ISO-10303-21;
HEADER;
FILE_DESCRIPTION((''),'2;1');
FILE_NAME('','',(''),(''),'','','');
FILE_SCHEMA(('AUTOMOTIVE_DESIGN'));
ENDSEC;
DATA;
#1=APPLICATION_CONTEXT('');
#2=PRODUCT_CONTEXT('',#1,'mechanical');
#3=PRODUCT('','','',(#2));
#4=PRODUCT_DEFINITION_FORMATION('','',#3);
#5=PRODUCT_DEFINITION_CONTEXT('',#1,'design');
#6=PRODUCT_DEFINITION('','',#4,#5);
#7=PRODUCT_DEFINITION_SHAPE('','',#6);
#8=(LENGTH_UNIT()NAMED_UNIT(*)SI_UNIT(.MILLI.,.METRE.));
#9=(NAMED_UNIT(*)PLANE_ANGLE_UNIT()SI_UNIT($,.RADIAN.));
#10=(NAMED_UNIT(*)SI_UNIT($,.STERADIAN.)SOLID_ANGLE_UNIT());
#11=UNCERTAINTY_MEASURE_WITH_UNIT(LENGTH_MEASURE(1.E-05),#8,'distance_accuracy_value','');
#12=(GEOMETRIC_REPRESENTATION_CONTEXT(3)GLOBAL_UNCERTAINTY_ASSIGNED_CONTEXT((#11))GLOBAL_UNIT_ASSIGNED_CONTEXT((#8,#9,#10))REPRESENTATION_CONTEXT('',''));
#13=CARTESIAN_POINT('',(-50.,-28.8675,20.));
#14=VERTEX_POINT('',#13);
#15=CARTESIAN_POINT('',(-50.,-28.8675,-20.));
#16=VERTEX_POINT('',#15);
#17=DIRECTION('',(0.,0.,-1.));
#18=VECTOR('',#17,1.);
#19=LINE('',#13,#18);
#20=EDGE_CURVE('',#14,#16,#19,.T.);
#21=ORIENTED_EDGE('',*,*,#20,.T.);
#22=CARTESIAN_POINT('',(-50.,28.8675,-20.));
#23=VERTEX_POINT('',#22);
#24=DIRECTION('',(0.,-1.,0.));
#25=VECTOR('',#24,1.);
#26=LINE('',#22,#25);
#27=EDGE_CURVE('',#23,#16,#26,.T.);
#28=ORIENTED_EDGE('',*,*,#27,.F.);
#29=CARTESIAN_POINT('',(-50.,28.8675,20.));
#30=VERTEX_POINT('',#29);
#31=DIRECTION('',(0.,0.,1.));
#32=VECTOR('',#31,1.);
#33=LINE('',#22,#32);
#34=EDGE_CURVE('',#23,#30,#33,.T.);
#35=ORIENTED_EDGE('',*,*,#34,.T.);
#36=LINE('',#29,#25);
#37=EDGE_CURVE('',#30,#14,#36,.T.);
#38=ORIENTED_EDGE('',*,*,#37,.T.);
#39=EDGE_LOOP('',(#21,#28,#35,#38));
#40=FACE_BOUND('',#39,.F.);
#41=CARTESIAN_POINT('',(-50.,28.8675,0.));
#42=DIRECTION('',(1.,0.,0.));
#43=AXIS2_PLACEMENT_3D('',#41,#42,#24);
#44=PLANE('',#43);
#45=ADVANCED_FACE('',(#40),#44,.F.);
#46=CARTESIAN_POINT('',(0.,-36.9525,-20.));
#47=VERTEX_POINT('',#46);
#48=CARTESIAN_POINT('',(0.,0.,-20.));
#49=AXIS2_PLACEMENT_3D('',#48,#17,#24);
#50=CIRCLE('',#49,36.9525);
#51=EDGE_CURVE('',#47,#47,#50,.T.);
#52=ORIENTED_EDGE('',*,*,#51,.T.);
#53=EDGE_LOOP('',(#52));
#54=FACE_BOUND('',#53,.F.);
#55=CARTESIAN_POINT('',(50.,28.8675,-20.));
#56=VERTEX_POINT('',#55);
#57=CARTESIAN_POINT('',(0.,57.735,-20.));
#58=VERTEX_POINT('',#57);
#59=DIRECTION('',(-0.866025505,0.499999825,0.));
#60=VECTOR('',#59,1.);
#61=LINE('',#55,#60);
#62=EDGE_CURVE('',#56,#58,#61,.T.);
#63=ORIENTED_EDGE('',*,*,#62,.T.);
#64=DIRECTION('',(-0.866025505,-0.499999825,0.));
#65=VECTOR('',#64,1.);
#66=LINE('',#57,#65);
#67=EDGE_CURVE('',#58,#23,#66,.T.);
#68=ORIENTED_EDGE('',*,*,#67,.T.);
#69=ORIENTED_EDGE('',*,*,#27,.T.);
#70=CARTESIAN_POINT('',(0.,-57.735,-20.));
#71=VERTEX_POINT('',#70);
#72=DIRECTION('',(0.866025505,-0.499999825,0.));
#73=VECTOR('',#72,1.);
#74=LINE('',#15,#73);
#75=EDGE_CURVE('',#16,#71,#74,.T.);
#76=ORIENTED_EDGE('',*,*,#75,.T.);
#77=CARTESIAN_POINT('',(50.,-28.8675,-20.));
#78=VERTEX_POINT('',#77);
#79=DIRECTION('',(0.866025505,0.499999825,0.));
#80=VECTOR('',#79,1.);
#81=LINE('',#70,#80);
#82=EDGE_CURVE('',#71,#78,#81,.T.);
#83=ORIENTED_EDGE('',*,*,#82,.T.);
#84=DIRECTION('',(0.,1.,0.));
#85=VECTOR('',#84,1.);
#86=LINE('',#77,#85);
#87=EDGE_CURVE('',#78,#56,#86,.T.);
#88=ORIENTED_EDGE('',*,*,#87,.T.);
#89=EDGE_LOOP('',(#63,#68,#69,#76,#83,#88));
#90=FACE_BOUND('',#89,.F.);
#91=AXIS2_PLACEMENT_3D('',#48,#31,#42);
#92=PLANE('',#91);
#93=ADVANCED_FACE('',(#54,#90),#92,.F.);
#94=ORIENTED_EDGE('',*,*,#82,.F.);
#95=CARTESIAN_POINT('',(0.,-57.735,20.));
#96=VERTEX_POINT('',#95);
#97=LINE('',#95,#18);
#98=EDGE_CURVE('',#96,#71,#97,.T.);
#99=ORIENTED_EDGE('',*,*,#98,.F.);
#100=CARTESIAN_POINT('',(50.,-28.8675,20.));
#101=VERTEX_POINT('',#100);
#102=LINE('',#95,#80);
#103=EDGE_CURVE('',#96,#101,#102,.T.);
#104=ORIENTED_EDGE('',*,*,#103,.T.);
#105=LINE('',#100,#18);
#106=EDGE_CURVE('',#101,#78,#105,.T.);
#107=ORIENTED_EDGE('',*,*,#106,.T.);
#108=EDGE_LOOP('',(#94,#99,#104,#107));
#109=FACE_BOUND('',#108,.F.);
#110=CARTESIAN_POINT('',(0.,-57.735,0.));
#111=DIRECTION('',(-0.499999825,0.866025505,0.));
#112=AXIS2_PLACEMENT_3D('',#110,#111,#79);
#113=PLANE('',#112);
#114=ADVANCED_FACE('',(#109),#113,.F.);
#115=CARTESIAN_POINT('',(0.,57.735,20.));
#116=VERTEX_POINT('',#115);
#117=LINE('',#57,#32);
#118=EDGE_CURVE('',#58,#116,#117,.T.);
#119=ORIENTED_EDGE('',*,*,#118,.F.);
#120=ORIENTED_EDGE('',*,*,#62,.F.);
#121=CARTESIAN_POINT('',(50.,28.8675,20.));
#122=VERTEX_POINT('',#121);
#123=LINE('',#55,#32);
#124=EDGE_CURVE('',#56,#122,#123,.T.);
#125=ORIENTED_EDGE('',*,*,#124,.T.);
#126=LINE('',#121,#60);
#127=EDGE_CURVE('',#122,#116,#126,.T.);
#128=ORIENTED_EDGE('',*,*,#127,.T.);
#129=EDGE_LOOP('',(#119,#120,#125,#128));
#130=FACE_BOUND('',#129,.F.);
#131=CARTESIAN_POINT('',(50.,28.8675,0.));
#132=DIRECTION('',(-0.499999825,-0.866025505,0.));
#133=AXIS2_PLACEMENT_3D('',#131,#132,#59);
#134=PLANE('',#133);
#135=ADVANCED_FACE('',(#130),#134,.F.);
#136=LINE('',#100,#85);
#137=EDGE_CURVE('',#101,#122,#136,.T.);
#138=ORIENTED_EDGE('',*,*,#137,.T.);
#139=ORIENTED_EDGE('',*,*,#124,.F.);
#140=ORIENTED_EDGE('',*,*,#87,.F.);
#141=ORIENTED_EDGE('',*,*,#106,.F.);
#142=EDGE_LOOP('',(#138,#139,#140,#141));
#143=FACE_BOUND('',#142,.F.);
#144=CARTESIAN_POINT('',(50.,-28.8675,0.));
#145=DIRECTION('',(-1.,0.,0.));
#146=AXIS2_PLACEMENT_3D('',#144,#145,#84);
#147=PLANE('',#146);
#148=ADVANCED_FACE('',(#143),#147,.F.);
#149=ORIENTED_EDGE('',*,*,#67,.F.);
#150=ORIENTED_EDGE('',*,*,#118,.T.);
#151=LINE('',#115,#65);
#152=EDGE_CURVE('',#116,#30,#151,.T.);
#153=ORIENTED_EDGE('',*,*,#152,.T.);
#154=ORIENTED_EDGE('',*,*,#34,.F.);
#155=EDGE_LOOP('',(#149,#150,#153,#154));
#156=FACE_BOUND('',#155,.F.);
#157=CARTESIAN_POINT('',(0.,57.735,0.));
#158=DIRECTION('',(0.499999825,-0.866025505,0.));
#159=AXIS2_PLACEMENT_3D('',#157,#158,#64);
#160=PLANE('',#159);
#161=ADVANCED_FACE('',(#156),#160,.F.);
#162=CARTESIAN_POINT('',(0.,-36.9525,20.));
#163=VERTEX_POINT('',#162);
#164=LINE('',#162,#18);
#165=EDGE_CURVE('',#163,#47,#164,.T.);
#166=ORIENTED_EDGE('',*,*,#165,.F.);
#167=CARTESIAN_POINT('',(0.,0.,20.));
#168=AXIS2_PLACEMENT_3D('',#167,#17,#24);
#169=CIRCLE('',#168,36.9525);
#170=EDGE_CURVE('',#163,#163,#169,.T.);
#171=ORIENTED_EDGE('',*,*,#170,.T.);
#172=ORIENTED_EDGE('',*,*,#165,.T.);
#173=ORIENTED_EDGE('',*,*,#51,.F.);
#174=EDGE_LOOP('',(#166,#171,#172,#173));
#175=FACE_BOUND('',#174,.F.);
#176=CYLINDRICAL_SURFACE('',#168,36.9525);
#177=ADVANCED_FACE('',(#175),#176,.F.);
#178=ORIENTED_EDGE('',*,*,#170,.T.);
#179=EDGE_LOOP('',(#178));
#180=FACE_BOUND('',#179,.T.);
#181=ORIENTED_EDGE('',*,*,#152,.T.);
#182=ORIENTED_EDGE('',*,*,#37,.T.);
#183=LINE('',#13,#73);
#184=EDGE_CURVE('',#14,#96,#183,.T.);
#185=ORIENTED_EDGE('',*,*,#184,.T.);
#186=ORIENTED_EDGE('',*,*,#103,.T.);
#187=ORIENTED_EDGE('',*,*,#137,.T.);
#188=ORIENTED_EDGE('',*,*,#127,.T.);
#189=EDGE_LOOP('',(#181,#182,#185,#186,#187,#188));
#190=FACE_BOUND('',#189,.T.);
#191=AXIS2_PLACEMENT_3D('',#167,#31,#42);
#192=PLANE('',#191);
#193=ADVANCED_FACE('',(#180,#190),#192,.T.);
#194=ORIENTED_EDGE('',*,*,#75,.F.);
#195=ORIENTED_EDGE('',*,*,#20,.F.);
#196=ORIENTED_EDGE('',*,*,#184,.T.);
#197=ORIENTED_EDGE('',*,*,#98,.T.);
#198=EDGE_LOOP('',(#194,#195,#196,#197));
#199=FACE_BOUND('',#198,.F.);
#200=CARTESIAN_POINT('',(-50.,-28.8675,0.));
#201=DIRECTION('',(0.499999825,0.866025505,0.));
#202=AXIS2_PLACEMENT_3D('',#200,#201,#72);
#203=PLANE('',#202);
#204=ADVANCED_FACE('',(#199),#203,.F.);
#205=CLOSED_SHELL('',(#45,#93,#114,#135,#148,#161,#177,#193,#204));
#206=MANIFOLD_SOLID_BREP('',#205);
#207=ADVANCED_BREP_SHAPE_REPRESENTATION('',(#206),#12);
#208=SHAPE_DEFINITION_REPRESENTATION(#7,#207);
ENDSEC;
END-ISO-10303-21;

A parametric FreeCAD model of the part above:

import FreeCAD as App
import Part
import Sketcher
from FreeCAD import Vector
Q = App.Units.Quantity


def add_polygon(sketch, points):
    """Adds a closed chain of lines whose ends are joined by coincident constraints."""
    first, n = sketch.GeometryCount, len(points)
    for a, b in zip(points, points[1:] + points[:1]):
        sketch.addGeometry(Part.LineSegment(App.Vector(*a, 0), App.Vector(*b, 0)), False)
    for i in range(n):
        sketch.addConstraint(Sketcher.Constraint("Coincident", first + i, 2, first + (i + 1) % n, 1))

doc = App.newDocument("Part")
body = doc.addObject("PartDesign::Body", "Body")

# Sketch on XY plane
sketch1 = body.newObject("Sketcher::SketchObject", "Sketch")
sketch1.AttachmentSupport = (doc.getObject("XY_Plane"), [""])
sketch1.MapMode = "FlatFace"
add_polygon(sketch1, [(50, -29), (50, 29), (0, 58), (-50, 29), (-50, -29), (0, -58)])  # lines 0-5
sketch1.addConstraint(Sketcher.Constraint("Vertical", 0))
sketch1.addConstraint(Sketcher.Constraint("Vertical", 3))
sketch1.addConstraint(Sketcher.Constraint("Symmetric", 0, 2, 3, 2, -1, 1))
sketch1.addConstraint(Sketcher.Constraint("Symmetric", 1, 2, 4, 2, -1, 1))
sketch1.addConstraint(Sketcher.Constraint("PointOnObject", 1, 2, -2))
sketch1.addConstraint(Sketcher.Constraint("Parallel", 2, 5))
sketch1.addConstraint(Sketcher.Constraint("Horizontal", 0, 2, 2, 2))
sketch1.addConstraint(Sketcher.Constraint("DistanceX", -1, 1, 0, 2, 50.0))
sketch1.addConstraint(Sketcher.Constraint("Angle", 1, Q("150 deg")))
sketch1.addConstraint(Sketcher.Constraint("DistanceY", 0, 1, 0, 2, 57.735))
pad1 = body.newObject("PartDesign::Pad", "Pad")
pad1.Profile = sketch1
pad1.Length = 40
pad1.Midplane = True

# Sketch on XY plane
sketch2 = body.newObject("Sketcher::SketchObject", "Sketch001")
sketch2.AttachmentSupport = (doc.getObject("XY_Plane"), [""])
sketch2.MapMode = "FlatFace"
sketch2.AttachmentOffset = App.Placement(Vector(0, 0, 20), App.Rotation())
sketch2.addGeometry(Part.Circle(Vector(0, 0, 0), Vector(0, 0, 1), 37), False)
sketch2.addConstraint(Sketcher.Constraint("Coincident", 0, 3, -1, 1))
sketch2.addConstraint(Sketcher.Constraint("Diameter", 0, 73.905))
doc.recompute()
hole = body.newObject("PartDesign::Hole", "Hole")
hole.Profile = sketch2
hole.ThreadType = "None"
hole.Diameter = 73.905
hole.DepthType = "ThroughAll"

doc.recompute()
